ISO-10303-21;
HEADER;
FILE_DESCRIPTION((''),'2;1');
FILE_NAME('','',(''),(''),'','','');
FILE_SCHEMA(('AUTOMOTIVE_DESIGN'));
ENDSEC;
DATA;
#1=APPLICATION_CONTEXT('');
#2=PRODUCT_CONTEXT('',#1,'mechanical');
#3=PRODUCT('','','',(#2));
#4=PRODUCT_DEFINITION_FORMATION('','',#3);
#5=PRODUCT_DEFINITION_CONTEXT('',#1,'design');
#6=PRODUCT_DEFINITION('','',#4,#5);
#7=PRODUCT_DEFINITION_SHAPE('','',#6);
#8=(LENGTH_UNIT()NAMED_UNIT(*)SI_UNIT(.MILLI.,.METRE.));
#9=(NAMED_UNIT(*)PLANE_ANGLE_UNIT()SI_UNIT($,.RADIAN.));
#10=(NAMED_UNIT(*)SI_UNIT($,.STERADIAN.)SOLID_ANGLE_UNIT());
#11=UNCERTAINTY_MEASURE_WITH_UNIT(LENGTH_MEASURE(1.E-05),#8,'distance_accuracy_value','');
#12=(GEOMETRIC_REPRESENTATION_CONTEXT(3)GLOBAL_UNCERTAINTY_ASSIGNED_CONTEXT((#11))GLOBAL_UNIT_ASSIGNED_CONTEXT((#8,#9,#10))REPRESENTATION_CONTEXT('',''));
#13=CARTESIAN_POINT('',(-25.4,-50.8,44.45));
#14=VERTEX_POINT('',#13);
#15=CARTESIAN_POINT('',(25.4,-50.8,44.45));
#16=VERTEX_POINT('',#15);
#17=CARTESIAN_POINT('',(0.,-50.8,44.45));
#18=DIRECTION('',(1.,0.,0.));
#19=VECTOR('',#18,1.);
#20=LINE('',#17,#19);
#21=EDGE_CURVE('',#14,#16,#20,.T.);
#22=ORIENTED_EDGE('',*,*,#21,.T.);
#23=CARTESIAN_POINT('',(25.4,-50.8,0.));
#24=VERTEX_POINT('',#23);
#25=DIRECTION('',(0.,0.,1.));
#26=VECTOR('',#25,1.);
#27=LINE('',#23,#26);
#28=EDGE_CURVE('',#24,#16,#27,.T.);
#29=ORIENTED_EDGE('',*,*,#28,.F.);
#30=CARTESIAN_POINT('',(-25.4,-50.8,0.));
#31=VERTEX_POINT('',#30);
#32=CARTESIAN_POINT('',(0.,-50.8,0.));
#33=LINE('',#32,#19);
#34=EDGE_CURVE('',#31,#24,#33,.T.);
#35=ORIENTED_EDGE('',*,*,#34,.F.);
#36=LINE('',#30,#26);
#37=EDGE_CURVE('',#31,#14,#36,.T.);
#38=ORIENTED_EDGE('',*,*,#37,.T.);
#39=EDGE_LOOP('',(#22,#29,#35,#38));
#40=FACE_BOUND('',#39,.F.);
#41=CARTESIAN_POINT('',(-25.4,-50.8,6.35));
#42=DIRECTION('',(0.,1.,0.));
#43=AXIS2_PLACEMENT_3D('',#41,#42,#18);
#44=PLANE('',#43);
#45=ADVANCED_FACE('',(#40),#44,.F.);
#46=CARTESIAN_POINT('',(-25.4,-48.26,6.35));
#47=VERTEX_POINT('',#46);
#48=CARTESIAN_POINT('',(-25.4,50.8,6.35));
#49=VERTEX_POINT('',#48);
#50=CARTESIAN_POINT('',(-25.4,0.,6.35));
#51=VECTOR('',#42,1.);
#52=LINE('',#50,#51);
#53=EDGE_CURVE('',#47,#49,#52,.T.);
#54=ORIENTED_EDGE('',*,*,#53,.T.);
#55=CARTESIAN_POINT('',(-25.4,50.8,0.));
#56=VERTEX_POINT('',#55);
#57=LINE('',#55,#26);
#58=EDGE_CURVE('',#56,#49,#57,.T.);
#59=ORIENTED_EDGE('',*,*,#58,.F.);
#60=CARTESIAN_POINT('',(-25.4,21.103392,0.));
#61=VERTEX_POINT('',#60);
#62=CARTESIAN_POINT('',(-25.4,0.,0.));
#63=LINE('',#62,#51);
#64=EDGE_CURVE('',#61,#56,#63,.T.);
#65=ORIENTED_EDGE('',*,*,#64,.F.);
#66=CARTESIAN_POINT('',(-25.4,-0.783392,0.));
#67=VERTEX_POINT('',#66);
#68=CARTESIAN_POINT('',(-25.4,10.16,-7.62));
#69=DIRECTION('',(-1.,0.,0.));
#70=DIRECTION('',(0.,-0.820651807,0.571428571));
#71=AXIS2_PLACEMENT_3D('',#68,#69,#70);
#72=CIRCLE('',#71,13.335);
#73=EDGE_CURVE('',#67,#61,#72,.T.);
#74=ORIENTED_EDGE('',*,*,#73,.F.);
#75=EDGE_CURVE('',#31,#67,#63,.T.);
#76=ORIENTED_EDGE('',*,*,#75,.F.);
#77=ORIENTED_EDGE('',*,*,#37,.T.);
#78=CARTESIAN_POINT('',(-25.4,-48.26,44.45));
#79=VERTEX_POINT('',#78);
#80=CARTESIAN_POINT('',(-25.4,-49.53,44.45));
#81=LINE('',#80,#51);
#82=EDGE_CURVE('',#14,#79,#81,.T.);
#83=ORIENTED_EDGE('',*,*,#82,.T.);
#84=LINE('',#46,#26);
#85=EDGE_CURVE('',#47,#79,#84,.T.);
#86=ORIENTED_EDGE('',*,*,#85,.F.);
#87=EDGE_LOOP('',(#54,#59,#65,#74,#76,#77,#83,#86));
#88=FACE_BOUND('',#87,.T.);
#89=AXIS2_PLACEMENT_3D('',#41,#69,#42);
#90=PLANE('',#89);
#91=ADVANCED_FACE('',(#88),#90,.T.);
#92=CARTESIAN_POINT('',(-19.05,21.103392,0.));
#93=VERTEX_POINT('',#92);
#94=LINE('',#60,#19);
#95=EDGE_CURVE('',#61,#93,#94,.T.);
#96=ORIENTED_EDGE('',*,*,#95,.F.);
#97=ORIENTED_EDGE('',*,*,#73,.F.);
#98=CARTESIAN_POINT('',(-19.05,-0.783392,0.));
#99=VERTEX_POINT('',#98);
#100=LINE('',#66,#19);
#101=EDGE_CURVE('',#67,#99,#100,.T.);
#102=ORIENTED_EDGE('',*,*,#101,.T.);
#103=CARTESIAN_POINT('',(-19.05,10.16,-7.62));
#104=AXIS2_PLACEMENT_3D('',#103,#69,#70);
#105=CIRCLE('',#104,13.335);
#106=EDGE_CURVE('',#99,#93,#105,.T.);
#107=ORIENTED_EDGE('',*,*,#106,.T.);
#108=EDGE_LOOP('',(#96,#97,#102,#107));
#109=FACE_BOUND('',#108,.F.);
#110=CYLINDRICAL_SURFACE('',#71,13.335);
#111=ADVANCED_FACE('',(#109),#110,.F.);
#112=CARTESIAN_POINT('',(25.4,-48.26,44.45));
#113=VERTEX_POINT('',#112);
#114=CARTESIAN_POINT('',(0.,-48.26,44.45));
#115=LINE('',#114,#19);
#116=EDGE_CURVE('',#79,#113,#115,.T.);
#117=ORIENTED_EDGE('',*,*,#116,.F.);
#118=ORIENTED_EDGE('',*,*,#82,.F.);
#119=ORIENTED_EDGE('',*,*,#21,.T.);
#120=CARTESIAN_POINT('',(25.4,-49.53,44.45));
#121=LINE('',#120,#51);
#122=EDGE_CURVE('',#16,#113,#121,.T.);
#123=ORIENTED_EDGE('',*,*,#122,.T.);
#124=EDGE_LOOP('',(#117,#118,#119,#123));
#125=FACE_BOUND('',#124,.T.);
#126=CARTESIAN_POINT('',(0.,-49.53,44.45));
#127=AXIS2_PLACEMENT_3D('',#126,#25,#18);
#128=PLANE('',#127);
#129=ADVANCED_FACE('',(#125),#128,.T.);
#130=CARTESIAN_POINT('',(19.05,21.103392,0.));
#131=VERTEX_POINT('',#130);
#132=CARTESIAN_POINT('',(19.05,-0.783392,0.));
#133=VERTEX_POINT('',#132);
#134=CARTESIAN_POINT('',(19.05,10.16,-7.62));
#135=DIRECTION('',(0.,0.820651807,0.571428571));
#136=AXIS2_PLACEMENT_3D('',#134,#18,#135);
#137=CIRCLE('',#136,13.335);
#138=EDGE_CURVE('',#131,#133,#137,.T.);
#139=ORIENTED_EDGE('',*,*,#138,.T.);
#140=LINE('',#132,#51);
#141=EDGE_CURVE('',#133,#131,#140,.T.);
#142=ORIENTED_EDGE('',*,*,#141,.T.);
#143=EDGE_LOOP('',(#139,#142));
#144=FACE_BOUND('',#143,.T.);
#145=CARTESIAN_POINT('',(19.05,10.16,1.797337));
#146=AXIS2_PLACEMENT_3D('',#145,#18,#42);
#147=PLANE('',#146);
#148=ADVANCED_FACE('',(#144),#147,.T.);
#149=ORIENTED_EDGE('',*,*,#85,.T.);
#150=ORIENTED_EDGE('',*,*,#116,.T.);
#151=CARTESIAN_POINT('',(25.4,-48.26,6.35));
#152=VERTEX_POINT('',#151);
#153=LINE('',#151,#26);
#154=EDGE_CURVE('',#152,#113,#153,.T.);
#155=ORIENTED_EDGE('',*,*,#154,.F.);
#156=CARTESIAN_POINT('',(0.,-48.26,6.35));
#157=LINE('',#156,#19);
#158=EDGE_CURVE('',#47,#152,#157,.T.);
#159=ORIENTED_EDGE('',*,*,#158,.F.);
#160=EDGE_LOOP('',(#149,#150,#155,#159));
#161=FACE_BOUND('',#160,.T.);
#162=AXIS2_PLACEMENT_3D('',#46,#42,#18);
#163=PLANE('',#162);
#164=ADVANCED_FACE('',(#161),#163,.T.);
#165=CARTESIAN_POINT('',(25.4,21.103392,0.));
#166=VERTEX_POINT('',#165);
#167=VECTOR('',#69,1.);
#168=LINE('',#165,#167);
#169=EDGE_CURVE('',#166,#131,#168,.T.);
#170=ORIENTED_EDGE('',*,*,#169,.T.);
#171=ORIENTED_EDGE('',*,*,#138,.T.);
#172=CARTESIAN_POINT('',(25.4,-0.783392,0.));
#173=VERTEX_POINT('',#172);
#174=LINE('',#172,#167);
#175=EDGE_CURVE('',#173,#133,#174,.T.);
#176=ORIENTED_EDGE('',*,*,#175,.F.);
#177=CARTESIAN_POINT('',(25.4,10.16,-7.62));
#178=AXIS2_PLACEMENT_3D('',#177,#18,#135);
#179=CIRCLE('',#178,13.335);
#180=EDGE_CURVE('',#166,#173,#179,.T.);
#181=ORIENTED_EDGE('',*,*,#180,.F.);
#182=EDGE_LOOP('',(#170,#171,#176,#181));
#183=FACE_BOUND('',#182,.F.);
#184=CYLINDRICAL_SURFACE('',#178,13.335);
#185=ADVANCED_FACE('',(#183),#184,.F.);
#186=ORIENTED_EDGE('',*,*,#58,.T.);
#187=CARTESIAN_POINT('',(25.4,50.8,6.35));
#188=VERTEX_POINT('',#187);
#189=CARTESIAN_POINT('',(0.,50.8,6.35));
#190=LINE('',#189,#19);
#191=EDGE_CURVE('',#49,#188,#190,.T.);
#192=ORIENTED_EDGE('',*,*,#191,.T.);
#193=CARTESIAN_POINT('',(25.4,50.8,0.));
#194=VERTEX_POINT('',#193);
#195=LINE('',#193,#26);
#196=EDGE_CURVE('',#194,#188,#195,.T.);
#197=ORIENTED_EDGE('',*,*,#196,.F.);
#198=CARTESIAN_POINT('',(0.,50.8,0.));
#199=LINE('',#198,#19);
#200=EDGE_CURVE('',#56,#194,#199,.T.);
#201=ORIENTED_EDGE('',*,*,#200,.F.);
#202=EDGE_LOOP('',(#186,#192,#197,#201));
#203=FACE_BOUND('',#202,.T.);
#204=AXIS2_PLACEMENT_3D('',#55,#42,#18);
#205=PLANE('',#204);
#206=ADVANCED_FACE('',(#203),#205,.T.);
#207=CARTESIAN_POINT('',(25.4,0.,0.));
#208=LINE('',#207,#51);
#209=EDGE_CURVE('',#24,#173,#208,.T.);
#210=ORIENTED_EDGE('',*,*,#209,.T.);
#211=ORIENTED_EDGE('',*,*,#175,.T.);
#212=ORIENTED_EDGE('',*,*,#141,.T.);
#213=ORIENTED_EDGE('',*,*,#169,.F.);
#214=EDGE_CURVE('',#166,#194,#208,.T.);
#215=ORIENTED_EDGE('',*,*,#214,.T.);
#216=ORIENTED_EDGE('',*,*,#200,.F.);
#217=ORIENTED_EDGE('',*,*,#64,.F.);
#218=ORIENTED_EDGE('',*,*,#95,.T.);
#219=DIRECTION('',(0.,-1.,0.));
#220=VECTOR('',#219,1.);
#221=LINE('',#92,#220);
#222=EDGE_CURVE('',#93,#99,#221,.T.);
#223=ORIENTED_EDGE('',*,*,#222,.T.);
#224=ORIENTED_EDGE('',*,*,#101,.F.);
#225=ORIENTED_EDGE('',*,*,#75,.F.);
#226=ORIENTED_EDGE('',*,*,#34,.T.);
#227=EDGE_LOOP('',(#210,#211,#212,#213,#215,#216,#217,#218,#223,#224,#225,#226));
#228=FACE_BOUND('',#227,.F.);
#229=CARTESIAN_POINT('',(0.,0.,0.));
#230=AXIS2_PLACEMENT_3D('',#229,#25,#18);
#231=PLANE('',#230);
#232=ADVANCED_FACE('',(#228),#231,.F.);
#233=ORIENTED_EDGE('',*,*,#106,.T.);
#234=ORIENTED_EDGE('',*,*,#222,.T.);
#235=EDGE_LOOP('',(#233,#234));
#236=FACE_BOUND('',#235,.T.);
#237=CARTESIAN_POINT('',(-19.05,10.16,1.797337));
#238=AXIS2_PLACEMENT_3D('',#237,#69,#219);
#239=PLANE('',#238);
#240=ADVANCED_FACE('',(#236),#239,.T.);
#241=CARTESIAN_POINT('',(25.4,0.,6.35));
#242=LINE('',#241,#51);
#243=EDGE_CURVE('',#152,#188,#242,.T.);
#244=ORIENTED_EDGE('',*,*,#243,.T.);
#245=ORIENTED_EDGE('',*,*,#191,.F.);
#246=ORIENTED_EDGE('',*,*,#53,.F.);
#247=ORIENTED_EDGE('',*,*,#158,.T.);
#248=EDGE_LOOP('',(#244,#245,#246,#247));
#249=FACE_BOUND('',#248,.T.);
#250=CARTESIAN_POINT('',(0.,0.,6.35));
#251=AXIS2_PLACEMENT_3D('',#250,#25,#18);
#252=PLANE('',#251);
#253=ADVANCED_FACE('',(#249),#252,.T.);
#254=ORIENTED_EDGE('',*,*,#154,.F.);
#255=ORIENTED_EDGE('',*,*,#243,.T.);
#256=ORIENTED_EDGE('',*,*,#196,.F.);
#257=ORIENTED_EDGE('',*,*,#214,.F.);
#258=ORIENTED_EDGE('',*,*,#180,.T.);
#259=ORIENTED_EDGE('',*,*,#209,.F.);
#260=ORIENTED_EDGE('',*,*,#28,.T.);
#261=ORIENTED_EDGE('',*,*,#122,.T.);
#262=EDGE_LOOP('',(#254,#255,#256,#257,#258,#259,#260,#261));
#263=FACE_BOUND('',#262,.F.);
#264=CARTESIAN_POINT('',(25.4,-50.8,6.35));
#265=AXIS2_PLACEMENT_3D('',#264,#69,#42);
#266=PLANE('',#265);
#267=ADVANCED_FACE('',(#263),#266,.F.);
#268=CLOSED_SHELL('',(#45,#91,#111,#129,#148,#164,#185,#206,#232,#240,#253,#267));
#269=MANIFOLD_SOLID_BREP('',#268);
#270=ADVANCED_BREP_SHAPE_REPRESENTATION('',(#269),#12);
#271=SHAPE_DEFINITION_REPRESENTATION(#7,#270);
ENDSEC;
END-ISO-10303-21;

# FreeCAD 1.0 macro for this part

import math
import FreeCAD as App
import Part
import Sketcher
from FreeCAD import Vector
Q = App.Units.Quantity


def add_polygon(sketch, points):
    """Adds a closed chain of lines whose ends are joined by coincident constraints."""
    first, n = sketch.GeometryCount, len(points)
    for a, b in zip(points, points[1:] + points[:1]):
        sketch.addGeometry(Part.LineSegment(App.Vector(*a, 0), App.Vector(*b, 0)), False)
    for i in range(n):
        sketch.addConstraint(Sketcher.Constraint("Coincident", first + i, 2, first + (i + 1) % n, 1))

doc = App.newDocument("Part")
params = doc.addObject("Spreadsheet::Sheet", "Params")
for row, (alias, value) in enumerate([
    ("sketch1_width", "2 in"),
    ("sketch1_height", "4 in"),
    ("pad1_length", "0.25 in"),
    ("sketch2_width", "2 in"),
    ("sketch2_height", "0.1 in"),
    ("pad2_length", "1.5 in"),
    ("sketch3_radius", "0.525 in"),
    ("pocket1_length", "0.25 in"),
    ("sketch4_radius", "0.525 in"),
    ("pocket2_length", "0.25 in"),
], start=1):
    params.set(f"A{row}", alias)
    params.set(f"B{row}", "=" + value)
    params.setAlias(f"B{row}", alias)

body = doc.addObject("PartDesign::Body", "Body")

sketch1 = body.newObject("Sketcher::SketchObject", "Sketch")
sketch1.AttachmentSupport = (doc.getObject("XY_Plane"), [""])
sketch1.MapMode = "FlatFace"
add_polygon(sketch1, [(-25, 51), (-25, -51), (25, -51), (25, 51)])
sketch1.addConstraint([
    Sketcher.Constraint("Vertical", 0),
    Sketcher.Constraint("Horizontal", 1),
    Sketcher.Constraint("Vertical", 2),
    Sketcher.Constraint("Horizontal", 3),
    Sketcher.Constraint("Symmetric", 0, 2, 2, 2, -1, 1),
    Sketcher.Constraint("DistanceX", 1, 1, 1, 2, Q("2 in")),
    Sketcher.Constraint("DistanceY", 0, 2, 0, 1, Q("4 in")),
])
sketch1.setExpression("Constraints[9]", "Params.sketch1_width")
sketch1.setExpression("Constraints[10]", "Params.sketch1_height")
pad1 = body.newObject("PartDesign::Pad", "Pad")
pad1.Profile = sketch1
pad1.setExpression("Length", "Params.pad1_length")

sketch2 = body.newObject("Sketcher::SketchObject", "Sketch001")
sketch2.AttachmentSupport = (doc.getObject("XY_Plane"), [""])
sketch2.MapMode = "FlatFace"
sketch2.AttachmentOffset = App.Placement(Vector(0, 0, 0.25 * 25.4), App.Rotation())
add_polygon(sketch2, [(-25.4, -48.3), (-25.4, -50.8), (25.4, -50.8), (25.4, -48.3)])
sketch2.addConstraint([
    Sketcher.Constraint("Vertical", 0),
    Sketcher.Constraint("Horizontal", 1),
    Sketcher.Constraint("Vertical", 2),
    Sketcher.Constraint("Horizontal", 3),
    Sketcher.Constraint("DistanceX", 1, 1, 1, 2, Q("2 in")),
    Sketcher.Constraint("DistanceY", 0, 2, 0, 1, Q("0.1 in")),
    Sketcher.Constraint("DistanceX", 0, 2, -1, 1, Q("1 in")),
    Sketcher.Constraint("DistanceY", 0, 2, -1, 1, Q("2 in")),
])
sketch2.setExpression("Constraints[8]", "Params.sketch2_width")
sketch2.setExpression("Constraints[9]", "Params.sketch2_height")
pad2 = body.newObject("PartDesign::Pad", "Pad001")
pad2.Profile = sketch2
pad2.setExpression("Length", "Params.pad2_length")

sketch3 = body.newObject("Sketcher::SketchObject", "Sketch002")
sketch3.AttachmentSupport = (doc.getObject("YZ_Plane"), [""])
sketch3.MapMode = "FlatFace"
sketch3.AttachmentOffset = App.Placement(Vector(0, 0, 1 * 25.4), App.Rotation())
sketch3.addGeometry([
    Part.LineSegment(Vector(-1, 0, 0), Vector(21, 0, 0)),
    Part.ArcOfCircle(Part.Circle(Vector(10, -8, 0), Vector(0, 0, 1), 13), math.radians(35), math.radians(145)),
], False)
sketch3.addConstraint([
    Sketcher.Constraint("Coincident", 0, 1, 1, 2),
    Sketcher.Constraint("Coincident", 1, 1, 0, 2),
    Sketcher.Constraint("Horizontal", 0),
    Sketcher.Constraint("PointOnObject", 0, 1, -1),
    Sketcher.Constraint("Radius", 1, Q("0.525 in")),
    Sketcher.Constraint("DistanceX", -1, 1, 1, 3, Q("0.4 in")),
    Sketcher.Constraint("DistanceY", 1, 3, -1, 1, Q("0.3 in")),
])
sketch3.setExpression("Constraints[4]", "Params.sketch3_radius")
pocket1 = body.newObject("PartDesign::Pocket", "Pocket")
pocket1.Profile = sketch3
pocket1.setExpression("Length", "Params.pocket1_length")

sketch4 = body.newObject("Sketcher::SketchObject", "Sketch003")
sketch4.AttachmentSupport = (doc.getObject("YZ_Plane"), [""])
sketch4.MapMode = "FlatFace"
sketch4.AttachmentOffset = App.Placement(Vector(0, 0, -1 * 25.4), App.Rotation())
sketch4.addGeometry([
    Part.LineSegment(Vector(21, 0, 0), Vector(-1, 0, 0)),
    Part.ArcOfCircle(Part.Circle(Vector(10, -8, 0), Vector(0, 0, 1), 13), math.radians(35), math.radians(145)),
], False)
sketch4.addConstraint([
    Sketcher.Constraint("Coincident", 0, 1, 1, 1),
    Sketcher.Constraint("Coincident", 1, 2, 0, 2),
    Sketcher.Constraint("Horizontal", 0),
    Sketcher.Constraint("PointOnObject", 0, 1, -1),
    Sketcher.Constraint("Radius", 1, Q("0.525 in")),
    Sketcher.Constraint("DistanceX", -1, 1, 1, 3, Q("0.4 in")),
    Sketcher.Constraint("DistanceY", 1, 3, -1, 1, Q("0.3 in")),
])
sketch4.setExpression("Constraints[4]", "Params.sketch4_radius")
pocket2 = body.newObject("PartDesign::Pocket", "Pocket001")
pocket2.Profile = sketch4
pocket2.setExpression("Length", "Params.pocket2_length")
pocket2.Reversed = True

doc.recompute()
